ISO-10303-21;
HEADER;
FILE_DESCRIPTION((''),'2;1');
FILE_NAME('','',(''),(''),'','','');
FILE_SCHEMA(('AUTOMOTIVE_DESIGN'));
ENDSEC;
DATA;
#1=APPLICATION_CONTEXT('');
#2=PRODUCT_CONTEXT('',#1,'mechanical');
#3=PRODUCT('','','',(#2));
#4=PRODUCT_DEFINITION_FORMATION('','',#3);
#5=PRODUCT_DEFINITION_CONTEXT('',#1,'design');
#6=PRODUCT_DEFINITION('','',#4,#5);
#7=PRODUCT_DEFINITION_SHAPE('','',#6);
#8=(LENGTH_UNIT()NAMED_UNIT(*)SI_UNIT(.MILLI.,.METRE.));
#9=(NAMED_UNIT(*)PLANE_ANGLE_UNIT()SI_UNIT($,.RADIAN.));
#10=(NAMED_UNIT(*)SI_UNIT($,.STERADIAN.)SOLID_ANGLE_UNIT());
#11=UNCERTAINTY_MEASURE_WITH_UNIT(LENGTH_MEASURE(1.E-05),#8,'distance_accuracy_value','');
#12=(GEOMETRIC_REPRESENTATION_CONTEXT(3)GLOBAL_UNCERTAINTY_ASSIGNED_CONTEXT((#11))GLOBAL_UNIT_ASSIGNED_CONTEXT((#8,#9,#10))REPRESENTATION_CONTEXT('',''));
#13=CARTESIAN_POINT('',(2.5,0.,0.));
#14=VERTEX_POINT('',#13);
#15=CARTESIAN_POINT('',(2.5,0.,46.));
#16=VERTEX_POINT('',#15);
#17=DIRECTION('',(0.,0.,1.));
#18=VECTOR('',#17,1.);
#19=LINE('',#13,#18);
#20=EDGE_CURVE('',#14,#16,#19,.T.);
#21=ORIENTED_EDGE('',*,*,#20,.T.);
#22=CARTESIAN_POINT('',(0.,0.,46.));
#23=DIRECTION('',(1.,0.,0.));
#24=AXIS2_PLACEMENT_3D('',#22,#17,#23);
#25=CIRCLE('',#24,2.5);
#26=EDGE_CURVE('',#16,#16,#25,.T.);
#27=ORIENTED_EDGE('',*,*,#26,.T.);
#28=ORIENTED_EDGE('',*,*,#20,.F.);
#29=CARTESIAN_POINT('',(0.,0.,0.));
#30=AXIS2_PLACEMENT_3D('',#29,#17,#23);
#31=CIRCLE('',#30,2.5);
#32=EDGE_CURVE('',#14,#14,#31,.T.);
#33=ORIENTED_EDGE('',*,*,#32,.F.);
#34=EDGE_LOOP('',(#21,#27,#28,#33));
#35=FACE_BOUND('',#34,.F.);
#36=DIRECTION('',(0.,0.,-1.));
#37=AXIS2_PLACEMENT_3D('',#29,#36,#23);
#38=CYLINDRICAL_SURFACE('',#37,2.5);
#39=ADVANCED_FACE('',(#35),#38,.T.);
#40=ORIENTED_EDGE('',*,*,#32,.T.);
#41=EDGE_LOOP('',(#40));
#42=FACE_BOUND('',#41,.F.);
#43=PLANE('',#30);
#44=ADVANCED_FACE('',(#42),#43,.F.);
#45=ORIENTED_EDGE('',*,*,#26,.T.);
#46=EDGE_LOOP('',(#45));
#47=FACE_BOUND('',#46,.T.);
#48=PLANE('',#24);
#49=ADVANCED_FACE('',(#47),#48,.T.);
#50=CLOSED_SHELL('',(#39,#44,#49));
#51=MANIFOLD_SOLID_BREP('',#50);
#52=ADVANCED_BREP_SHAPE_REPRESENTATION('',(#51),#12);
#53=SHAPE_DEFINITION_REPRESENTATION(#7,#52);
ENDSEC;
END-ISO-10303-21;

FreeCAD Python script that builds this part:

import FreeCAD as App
import Part
import Sketcher
from FreeCAD import Vector
Q = App.Units.Quantity

doc = App.newDocument("Part")
body = doc.addObject("PartDesign::Body", "Body")

sketch1 = body.newObject("Sketcher::SketchObject", "Sketch")
sketch1.AttachmentSupport = (doc.getObject("XY_Plane"), [""])
sketch1.MapMode = "FlatFace"
sketch1.addGeometry(Part.Circle(Vector(0, 0, 0), Vector(0, 0, 1), 2.5), False)
sketch1.addConstraint([
    Sketcher.Constraint("Coincident", 0, 3, -1, 1),
    Sketcher.Constraint("Diameter", 0, Q("5 mm")),
])
pad1 = body.newObject("PartDesign::Pad", "Pad")
pad1.Profile = sketch1
pad1.Length = 46

doc.recompute()
